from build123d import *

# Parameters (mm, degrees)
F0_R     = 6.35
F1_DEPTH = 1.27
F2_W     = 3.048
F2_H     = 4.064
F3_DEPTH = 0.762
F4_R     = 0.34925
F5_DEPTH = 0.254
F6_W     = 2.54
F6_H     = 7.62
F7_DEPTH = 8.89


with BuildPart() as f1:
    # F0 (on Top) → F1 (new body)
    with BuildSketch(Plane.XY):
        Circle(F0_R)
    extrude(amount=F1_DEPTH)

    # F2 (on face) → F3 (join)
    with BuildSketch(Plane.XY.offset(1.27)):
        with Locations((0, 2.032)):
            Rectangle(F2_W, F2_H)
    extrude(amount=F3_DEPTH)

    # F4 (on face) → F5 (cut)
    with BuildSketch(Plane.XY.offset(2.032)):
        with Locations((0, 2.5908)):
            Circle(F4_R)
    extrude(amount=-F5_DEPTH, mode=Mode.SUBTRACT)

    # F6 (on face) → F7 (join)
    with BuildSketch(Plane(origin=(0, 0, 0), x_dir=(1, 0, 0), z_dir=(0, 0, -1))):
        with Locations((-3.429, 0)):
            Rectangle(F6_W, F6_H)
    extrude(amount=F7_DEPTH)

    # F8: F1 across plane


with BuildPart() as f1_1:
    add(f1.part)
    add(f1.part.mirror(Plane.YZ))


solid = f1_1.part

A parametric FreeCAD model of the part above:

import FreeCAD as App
import Part
import Sketcher

V = App.Vector
Q = App.Units.Quantity


def add_polygon(sketch, points):
    """Adds a closed chain of lines whose ends are joined by coincident constraints."""
    first, n = sketch.GeometryCount, len(points)
    for a, b in zip(points, points[1:] + points[:1]):
        sketch.addGeometry(Part.LineSegment(App.Vector(*a, 0), App.Vector(*b, 0)), False)
    for i in range(n):
        sketch.addConstraint(Sketcher.Constraint("Coincident", first + i, 2, first + (i + 1) % n, 1))

doc = App.newDocument("Part")
body = doc.addObject("PartDesign::Body", "Body")

# Sketch on XY plane
sketch1 = body.newObject("Sketcher::SketchObject", "Sketch")
sketch1.AttachmentSupport = (doc.getObject("XY_Plane"), [""])
sketch1.MapMode = "FlatFace"
sketch1.addGeometry(Part.Circle(V(0, 0, 0), V(0, 0, 1), 6), False)
sketch1.addConstraint(Sketcher.Constraint("Coincident", 0, 3, -1, 1))
sketch1.addConstraint(Sketcher.Constraint("Diameter", 0, Q("0.5 in")))
pad1 = body.newObject("PartDesign::Pad", "Pad")
pad1.Profile = sketch1
pad1.Length = Q("0.05 in")

# Sketch on XY plane
sketch2 = body.newObject("Sketcher::SketchObject", "Sketch001")
sketch2.AttachmentSupport = (doc.getObject("XY_Plane"), [""])
sketch2.MapMode = "FlatFace"
sketch2.AttachmentOffset = App.Placement(V(0, 0, 0.05 * 25.4), App.Rotation())
add_polygon(sketch2, [(-1.5, 4.1), (-1.5, 0), (1.5, 0), (1.5, 4.1)])  # lines 0-3
sketch2.addConstraint(Sketcher.Constraint("Vertical", 0))
sketch2.addConstraint(Sketcher.Constraint("Horizontal", 1))
sketch2.addConstraint(Sketcher.Constraint("Vertical", 2))
sketch2.addConstraint(Sketcher.Constraint("Horizontal", 3))
sketch2.addConstraint(Sketcher.Constraint("Symmetric", 0, 2, 1, 2, -1, 1))
sketch2.addConstraint(Sketcher.Constraint("DistanceX", 1, 1, 1, 2, Q("0.12 in")))
sketch2.addConstraint(Sketcher.Constraint("DistanceY", 0, 2, 0, 1, Q("0.16 in")))
pad2 = body.newObject("PartDesign::Pad", "Pad001")
pad2.Profile = sketch2
pad2.Length = Q("0.03 in")

# Sketch on XY plane
sketch3 = body.newObject("Sketcher::SketchObject", "Sketch002")
sketch3.AttachmentSupport = (doc.getObject("XY_Plane"), [""])
sketch3.MapMode = "FlatFace"
sketch3.AttachmentOffset = App.Placement(V(0, 0, 0.08 * 25.4), App.Rotation())
sketch3.addGeometry(Part.Circle(V(0, 2.59, 0), V(0, 0, 1), 0.35), False)
sketch3.addConstraint(Sketcher.Constraint("PointOnObject", 0, 3, -2))
sketch3.addConstraint(Sketcher.Constraint("Diameter", 0, Q("0.0275 in")))
sketch3.addConstraint(Sketcher.Constraint("DistanceY", -1, 1, 0, 3, Q("0.102 in")))
pocket1 = body.newObject("PartDesign::Pocket", "Pocket")
pocket1.Profile = sketch3
pocket1.Length = Q("0.01 in")

# Sketch on XY plane
sketch4 = body.newObject("Sketcher::SketchObject", "Sketch003")
sketch4.AttachmentSupport = (doc.getObject("XY_Plane"), [""])
sketch4.MapMode = "FlatFace"
add_polygon(sketch4, [(-4.7, -3.8), (-4.7, 3.8), (-2.2, 3.8), (-2.2, -3.8)])  # lines 0-3
sketch4.addConstraint(Sketcher.Constraint("Vertical", 0))
sketch4.addConstraint(Sketcher.Constraint("Horizontal", 1))
sketch4.addConstraint(Sketcher.Constraint("Vertical", 2))
sketch4.addConstraint(Sketcher.Constraint("Horizontal", 3))
sketch4.addConstraint(Sketcher.Constraint("DistanceX", 1, 1, 1, 2, Q("0.1 in")))
sketch4.addConstraint(Sketcher.Constraint("DistanceY", 0, 1, 0, 2, Q("0.3 in")))
sketch4.addConstraint(Sketcher.Constraint("DistanceY", -1, 1, 0, 2, Q("0.15 in")))
sketch4.addConstraint(Sketcher.Constraint("DistanceX", 0, 2, -1, 1, Q("0.185 in")))
pad3 = body.newObject("PartDesign::Pad", "Pad002")
pad3.Profile = sketch4
pad3.Length = Q("0.35 in")
pad3.Reversed = True
body2 = doc.addObject("PartDesign::Body", "Body001")
doc.recompute()

body2.BaseFeature = body
doc.recompute()

mirroring = doc.addObject("Part::Mirroring", "Mirroring")
mirroring.Source = body
mirroring.Base = V(0, 0, 0)
mirroring.Normal = V(1, 0, 0)
body3 = doc.addObject("PartDesign::Body", "Body002")
body3.BaseFeature = mirroring
boolean = body2.newObject("PartDesign::Boolean", "Boolean")
boolean.Type = "Fuse"
boolean.addObjects([body3])
doc.recompute()
mirroring.Visibility = False

doc.recompute()
